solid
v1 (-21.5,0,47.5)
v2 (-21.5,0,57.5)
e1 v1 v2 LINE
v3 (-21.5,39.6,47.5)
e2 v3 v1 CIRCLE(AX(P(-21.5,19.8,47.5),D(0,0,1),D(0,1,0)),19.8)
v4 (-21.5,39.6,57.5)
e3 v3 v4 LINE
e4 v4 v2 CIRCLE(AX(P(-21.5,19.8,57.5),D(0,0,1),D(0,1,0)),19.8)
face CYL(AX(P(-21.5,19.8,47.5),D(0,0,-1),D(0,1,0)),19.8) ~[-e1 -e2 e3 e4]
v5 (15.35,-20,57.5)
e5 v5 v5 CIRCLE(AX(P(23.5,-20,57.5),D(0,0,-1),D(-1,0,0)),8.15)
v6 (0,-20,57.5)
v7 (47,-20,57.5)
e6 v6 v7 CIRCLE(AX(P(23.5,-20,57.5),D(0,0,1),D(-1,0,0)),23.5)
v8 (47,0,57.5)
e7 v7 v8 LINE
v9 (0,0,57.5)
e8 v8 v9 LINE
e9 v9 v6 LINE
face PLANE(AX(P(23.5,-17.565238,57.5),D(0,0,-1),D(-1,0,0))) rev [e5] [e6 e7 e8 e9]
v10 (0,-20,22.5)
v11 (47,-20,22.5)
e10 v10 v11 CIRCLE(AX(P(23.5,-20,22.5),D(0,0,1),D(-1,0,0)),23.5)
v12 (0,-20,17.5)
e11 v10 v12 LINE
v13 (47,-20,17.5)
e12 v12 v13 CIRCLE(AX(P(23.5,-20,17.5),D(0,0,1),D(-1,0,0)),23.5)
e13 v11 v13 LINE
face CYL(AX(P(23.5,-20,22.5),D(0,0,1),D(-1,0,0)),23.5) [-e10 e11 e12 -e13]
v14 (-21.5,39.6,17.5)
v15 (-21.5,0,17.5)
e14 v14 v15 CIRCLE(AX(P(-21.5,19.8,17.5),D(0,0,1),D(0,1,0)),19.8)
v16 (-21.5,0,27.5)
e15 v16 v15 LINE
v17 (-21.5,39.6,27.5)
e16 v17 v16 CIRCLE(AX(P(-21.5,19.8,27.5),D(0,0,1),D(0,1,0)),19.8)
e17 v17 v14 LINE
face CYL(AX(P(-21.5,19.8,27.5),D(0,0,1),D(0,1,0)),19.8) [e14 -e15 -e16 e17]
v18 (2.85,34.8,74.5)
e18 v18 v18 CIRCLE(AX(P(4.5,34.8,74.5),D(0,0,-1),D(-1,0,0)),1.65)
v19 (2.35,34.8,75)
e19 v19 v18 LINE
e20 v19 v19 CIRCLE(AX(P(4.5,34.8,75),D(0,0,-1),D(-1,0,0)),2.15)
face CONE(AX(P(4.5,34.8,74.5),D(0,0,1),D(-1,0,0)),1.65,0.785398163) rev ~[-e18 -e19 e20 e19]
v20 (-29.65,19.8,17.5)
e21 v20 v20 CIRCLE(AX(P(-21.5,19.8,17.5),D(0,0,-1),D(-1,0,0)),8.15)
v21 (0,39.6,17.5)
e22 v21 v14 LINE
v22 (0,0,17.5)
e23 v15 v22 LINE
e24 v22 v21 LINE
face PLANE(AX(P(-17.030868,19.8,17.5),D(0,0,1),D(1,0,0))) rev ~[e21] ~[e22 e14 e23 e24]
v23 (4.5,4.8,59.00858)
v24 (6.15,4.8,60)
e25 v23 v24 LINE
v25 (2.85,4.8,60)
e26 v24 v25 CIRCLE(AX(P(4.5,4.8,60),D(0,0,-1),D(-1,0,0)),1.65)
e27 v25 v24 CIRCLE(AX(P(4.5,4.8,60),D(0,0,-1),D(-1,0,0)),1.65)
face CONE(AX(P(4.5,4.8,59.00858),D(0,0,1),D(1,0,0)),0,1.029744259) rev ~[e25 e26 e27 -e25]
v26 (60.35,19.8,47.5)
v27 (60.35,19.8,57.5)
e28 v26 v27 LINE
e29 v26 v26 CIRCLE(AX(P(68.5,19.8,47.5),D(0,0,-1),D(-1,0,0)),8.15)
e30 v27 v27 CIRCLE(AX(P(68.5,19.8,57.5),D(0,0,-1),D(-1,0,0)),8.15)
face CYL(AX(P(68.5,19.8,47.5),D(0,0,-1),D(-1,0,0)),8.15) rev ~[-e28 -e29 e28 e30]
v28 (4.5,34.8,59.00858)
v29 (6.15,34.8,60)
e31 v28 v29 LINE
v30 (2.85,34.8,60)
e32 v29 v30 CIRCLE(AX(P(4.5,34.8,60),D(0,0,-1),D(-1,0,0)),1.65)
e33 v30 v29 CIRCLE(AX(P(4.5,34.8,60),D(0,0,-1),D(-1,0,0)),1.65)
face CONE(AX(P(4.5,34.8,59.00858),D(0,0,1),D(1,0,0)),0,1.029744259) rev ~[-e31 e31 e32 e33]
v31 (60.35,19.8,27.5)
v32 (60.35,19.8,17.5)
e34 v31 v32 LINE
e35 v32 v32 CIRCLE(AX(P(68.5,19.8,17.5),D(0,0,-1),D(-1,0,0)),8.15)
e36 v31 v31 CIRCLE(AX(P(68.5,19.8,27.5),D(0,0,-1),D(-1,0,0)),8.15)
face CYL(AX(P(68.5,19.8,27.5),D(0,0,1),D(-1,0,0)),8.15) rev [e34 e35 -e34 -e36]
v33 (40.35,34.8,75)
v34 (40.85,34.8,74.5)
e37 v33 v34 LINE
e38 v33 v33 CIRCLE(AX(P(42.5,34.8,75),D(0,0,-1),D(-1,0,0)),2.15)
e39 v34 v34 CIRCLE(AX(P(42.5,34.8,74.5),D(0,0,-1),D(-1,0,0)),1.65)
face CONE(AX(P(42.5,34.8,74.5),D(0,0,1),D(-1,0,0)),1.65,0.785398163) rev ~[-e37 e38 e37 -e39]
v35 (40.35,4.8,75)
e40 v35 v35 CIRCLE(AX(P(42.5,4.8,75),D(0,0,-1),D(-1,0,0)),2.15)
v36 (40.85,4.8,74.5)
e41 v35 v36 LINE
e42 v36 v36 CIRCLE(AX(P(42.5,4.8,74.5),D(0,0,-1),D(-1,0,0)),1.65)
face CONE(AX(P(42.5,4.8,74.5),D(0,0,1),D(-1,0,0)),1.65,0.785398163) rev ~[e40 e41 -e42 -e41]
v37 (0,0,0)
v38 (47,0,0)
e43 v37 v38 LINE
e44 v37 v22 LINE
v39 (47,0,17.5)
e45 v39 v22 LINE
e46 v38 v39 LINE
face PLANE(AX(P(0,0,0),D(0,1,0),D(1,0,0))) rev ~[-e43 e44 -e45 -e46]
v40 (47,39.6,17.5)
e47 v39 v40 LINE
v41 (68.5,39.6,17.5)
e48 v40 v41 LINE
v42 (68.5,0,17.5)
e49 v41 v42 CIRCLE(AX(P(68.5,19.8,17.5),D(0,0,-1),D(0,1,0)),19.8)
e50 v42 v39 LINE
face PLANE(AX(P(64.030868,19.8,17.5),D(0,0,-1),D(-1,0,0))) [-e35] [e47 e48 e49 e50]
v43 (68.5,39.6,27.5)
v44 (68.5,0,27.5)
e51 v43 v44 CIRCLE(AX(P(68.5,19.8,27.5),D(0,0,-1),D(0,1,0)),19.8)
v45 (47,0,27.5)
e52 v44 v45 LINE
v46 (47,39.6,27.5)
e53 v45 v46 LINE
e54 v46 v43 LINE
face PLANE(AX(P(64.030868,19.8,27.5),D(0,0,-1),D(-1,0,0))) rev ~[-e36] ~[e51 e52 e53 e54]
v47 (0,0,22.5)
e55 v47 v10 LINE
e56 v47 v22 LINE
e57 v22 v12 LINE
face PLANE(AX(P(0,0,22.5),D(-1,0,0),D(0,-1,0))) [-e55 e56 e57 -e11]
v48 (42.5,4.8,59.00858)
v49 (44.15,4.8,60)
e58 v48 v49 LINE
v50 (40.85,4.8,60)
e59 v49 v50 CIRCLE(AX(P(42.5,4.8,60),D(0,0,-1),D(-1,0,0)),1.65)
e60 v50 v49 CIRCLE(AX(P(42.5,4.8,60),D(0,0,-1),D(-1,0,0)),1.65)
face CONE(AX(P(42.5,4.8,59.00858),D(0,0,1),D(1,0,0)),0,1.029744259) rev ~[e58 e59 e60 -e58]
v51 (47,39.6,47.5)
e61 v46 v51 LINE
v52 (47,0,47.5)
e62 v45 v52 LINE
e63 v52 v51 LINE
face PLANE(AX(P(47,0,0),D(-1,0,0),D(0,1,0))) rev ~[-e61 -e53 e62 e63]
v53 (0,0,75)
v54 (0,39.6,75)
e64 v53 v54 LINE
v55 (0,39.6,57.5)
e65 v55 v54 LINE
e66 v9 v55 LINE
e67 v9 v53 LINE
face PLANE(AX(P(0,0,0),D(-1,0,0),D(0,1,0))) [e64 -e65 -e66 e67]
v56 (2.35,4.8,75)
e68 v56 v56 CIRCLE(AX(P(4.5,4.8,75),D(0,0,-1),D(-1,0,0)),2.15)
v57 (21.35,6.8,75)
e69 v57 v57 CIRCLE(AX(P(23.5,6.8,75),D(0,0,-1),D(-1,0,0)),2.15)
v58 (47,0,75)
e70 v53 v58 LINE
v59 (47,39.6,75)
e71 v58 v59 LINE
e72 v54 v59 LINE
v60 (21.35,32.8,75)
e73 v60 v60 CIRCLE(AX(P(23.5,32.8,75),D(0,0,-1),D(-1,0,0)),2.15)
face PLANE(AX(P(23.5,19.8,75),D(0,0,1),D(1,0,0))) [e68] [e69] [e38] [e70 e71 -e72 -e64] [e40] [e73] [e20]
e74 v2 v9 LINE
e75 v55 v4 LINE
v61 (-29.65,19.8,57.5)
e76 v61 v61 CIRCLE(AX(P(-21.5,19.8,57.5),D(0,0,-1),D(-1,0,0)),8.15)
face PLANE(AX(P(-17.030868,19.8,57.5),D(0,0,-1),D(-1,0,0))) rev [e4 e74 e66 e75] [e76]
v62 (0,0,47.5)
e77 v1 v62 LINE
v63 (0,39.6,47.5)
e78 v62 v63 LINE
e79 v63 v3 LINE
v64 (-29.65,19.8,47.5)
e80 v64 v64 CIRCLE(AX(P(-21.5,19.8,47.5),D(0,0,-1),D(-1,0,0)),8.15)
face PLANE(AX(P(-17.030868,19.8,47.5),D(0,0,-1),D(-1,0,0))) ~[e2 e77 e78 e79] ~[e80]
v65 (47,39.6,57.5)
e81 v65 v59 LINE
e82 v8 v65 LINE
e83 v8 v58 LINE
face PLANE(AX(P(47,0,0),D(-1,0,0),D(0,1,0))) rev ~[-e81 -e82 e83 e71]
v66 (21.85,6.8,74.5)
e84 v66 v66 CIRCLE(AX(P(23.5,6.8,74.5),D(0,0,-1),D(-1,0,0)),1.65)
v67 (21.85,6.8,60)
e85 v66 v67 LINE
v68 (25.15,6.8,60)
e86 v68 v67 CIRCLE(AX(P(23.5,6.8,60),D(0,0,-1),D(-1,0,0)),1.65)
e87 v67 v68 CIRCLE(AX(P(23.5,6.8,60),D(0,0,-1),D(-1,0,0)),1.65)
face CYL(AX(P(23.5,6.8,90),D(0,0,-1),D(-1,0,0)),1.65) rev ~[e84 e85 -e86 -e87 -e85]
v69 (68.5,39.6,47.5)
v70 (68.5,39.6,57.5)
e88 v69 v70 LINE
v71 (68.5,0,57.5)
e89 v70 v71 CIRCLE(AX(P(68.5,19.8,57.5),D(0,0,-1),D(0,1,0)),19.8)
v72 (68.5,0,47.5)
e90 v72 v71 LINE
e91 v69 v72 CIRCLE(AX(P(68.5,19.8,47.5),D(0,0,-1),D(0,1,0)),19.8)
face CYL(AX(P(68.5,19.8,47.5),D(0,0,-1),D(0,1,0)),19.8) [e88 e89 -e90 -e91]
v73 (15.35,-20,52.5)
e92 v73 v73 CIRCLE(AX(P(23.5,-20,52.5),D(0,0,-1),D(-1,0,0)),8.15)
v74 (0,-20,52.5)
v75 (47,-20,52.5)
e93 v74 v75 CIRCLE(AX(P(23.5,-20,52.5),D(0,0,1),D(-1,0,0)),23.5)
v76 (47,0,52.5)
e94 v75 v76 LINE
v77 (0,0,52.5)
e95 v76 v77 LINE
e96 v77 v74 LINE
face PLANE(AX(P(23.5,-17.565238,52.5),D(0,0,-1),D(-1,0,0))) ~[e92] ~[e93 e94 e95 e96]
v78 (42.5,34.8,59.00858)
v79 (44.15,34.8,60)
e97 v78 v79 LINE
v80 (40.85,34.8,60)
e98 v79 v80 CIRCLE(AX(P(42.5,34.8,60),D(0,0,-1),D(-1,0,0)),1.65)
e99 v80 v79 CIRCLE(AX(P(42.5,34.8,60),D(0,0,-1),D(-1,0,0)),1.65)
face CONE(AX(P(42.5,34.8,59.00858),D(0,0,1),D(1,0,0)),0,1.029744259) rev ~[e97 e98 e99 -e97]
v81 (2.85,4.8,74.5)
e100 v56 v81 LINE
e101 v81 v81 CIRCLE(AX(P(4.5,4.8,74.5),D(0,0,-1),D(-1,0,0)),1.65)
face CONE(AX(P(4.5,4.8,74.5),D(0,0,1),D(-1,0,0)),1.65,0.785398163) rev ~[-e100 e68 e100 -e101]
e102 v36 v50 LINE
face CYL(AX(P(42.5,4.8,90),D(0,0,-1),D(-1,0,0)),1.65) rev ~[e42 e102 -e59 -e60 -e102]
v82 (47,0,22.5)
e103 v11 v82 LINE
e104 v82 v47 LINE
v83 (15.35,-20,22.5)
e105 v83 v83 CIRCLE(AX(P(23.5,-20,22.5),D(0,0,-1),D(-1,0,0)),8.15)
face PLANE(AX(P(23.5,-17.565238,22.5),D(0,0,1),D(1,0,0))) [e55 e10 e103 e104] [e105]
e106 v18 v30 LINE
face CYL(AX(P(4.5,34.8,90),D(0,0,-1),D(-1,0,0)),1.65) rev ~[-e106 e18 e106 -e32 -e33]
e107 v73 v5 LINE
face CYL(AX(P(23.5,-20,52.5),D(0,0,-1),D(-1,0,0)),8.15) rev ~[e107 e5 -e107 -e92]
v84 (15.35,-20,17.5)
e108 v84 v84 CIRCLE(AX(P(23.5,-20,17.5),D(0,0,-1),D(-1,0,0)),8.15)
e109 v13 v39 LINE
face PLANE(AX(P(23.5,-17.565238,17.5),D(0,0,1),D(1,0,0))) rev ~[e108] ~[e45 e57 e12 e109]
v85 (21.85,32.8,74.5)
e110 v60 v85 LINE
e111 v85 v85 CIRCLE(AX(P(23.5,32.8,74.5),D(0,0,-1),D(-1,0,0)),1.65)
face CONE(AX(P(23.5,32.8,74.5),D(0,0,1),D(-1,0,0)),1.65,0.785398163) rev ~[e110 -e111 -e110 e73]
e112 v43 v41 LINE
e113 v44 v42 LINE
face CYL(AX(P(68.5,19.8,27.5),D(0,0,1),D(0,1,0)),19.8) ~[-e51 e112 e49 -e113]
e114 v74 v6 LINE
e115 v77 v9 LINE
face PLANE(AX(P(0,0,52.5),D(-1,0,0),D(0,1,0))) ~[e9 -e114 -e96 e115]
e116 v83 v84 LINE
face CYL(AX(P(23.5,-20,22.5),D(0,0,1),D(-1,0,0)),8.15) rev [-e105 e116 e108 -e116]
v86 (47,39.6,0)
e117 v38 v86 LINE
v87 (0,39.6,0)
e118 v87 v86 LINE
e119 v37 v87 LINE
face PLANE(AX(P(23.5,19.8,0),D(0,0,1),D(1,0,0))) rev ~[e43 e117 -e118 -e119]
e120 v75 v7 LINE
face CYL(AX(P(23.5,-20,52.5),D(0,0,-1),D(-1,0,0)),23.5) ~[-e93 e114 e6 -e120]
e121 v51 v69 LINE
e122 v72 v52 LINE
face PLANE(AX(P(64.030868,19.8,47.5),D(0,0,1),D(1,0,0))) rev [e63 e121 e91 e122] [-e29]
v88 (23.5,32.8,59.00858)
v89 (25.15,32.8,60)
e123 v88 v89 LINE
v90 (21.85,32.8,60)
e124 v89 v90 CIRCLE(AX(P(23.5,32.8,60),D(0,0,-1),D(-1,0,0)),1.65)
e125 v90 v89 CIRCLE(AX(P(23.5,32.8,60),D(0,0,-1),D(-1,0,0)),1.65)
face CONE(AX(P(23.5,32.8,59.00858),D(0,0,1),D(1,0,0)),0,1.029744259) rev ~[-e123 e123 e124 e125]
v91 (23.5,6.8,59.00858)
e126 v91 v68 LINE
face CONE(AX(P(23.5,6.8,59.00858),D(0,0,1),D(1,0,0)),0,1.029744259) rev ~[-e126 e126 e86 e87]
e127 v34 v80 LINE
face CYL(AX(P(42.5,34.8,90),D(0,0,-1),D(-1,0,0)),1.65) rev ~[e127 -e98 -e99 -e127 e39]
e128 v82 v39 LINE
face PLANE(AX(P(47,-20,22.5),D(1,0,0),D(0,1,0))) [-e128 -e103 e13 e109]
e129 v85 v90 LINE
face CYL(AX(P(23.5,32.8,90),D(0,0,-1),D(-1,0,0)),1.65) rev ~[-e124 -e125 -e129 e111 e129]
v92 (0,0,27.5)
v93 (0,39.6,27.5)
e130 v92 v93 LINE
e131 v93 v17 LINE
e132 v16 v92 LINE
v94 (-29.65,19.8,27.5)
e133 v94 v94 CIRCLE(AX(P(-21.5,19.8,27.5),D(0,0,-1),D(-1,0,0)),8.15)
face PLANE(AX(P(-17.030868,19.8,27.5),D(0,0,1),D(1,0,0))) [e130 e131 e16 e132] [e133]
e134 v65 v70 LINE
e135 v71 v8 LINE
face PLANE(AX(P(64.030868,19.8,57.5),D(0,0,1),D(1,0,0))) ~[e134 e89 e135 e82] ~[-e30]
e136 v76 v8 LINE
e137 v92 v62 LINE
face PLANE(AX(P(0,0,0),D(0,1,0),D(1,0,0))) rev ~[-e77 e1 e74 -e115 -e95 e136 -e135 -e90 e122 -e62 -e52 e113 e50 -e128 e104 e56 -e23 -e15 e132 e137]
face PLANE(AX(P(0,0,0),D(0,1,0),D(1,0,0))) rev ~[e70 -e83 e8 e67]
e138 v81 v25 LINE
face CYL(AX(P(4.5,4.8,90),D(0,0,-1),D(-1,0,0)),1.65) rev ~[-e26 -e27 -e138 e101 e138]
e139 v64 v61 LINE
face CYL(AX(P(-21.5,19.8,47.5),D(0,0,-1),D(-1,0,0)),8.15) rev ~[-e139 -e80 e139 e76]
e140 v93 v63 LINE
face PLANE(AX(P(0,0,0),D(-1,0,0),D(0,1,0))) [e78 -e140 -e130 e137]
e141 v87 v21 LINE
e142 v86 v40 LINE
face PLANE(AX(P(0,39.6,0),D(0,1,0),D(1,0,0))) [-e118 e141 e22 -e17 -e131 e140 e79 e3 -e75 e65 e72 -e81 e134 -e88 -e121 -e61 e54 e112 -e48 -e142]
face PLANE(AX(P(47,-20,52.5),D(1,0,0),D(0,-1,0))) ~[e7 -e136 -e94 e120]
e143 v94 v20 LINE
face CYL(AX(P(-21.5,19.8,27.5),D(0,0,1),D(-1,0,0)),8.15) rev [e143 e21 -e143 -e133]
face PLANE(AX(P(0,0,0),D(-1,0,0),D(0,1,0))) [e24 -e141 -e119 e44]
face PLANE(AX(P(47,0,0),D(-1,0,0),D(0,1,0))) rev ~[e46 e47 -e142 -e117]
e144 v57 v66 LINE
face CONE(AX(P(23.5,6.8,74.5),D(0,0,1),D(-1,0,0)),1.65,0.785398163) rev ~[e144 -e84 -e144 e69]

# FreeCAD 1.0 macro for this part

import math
import FreeCAD as App
import Part
import Sketcher
from FreeCAD import Vector
Q = App.Units.Quantity


def edges_at(feature, points):
    """Names of the edges that pass closest to the given points."""
    edges = feature.Shape.Edges
    near = lambda p: min(range(len(edges)), key=lambda i: edges[i].distToShape(Part.Vertex(*p))[0])
    return sorted({f"Edge{near(p) + 1}" for p in points})

doc = App.newDocument("Part")
body = doc.addObject("PartDesign::Body", "Body")

sketch1 = doc.addObject("Sketcher::SketchObject", "Sketch")
body.addObject(sketch1)
sketch1.AttachmentSupport = (doc.XY_Plane, [""])
sketch1.MapMode = "FlatFace"
sketch1.addGeometry([
    Part.LineSegment(Vector(0, 40, 0), Vector(0, 0, 0)),
    Part.LineSegment(Vector(0, 0, 0), Vector(47, 0, 0)),
    Part.LineSegment(Vector(47, 0, 0), Vector(47, 40, 0)),
    Part.LineSegment(Vector(47, 40, 0), Vector(0, 40, 0)),
], False)
sketch1.addConstraint([
    Sketcher.Constraint("Coincident", 0, 2, 1, 1),
    Sketcher.Constraint("Coincident", 1, 2, 2, 1),
    Sketcher.Constraint("Coincident", 2, 2, 3, 1),
    Sketcher.Constraint("Coincident", 3, 2, 0, 1),
    Sketcher.Constraint("Vertical", 0),
    Sketcher.Constraint("Horizontal", 1),
    Sketcher.Constraint("Vertical", 2),
    Sketcher.Constraint("Horizontal", 3),
    Sketcher.Constraint("Coincident", 0, 2, -1, 1),
    Sketcher.Constraint("DistanceX", 1, 1, 1, 2, Q("47 mm")),
    Sketcher.Constraint("DistanceY", 0, 2, 0, 1, Q("39.6 mm")),
])
pad1 = doc.addObject("PartDesign::Pad", "Pad")
body.addObject(pad1)
pad1.Profile = sketch1
pad1.Length = 75

sketch2 = doc.addObject("Sketcher::SketchObject", "Sketch001")
body.addObject(sketch2)
sketch2.AttachmentSupport = (doc.XY_Plane, [""])
sketch2.MapMode = "FlatFace"
sketch2.AttachmentOffset = App.Placement(Vector(0, 0, 27.5), App.Rotation())
sketch2.addGeometry([
    Part.LineSegment(Vector(47, 40, 0), Vector(68, 40, 0)),
    Part.ArcOfCircle(Part.Circle(Vector(68, 20, 0), Vector(0, 0, 1), 20), math.radians(-90), math.radians(90)),
    Part.LineSegment(Vector(68, 0, 0), Vector(47, 0, 0)),
    Part.LineSegment(Vector(47, 0, 0), Vector(47, 40, 0)),
    Part.Circle(Vector(68, 20, 0), Vector(0, 0, 1), 8),
    Part.LineSegment(Vector(0, 0, 0), Vector(-22, 0, 0)),
    Part.ArcOfCircle(Part.Circle(Vector(-22, 20, 0), Vector(0, 0, 1), 20), math.radians(90), math.radians(270)),
    Part.LineSegment(Vector(-22, 40, 0), Vector(0, 40, 0)),
    Part.LineSegment(Vector(0, 40, 0), Vector(0, 0, 0)),
    Part.Circle(Vector(-22, 20, 0), Vector(0, 0, 1), 8),
], False)
sketch2.addConstraint([
    Sketcher.Constraint("Tangent", 0, 2, 1, 2),
    Sketcher.Constraint("Tangent", 1, 1, 2, 1),
    Sketcher.Constraint("Coincident", 2, 2, 3, 1),
    Sketcher.Constraint("Coincident", 3, 2, 0, 1),
    Sketcher.Constraint("Tangent", 5, 2, 6, 2),
    Sketcher.Constraint("Tangent", 6, 1, 7, 1),
    Sketcher.Constraint("Coincident", 7, 2, 8, 1),
    Sketcher.Constraint("Coincident", 8, 2, 5, 1),
    Sketcher.Constraint("Horizontal", 0),
    Sketcher.Constraint("Horizontal", 2),
    Sketcher.Constraint("Vertical", 3),
    Sketcher.Constraint("Horizontal", 5),
    Sketcher.Constraint("Horizontal", 7),
    Sketcher.Constraint("Vertical", 8),
    Sketcher.Constraint("Coincident", 8, 2, -1, 1),
    Sketcher.Constraint("Coincident", 4, 3, 1, 3),
    Sketcher.Constraint("Coincident", 9, 3, 6, 3),
    Sketcher.Constraint("Equal", 1, 6),
    Sketcher.Constraint("Equal", 4, 9),
    Sketcher.Constraint("PointOnObject", 1, 1, -1),
    Sketcher.Constraint("Equal", 2, 5),
    Sketcher.Constraint("Diameter", 4, Q("16.3 mm")),
    Sketcher.Constraint("Radius", 1, Q("19.8 mm")),
    Sketcher.Constraint("DistanceX", 0, 1, 0, 2, Q("21.5 mm")),
    Sketcher.Constraint("DistanceX", -1, 1, 2, 2, Q("47 mm")),
])
pad2 = doc.addObject("PartDesign::Pad", "Pad001")
body.addObject(pad2)
pad2.Profile = sketch2
pad2.Length = 10
pad2.Reversed = True
doc.recompute()

datumplane = doc.addObject("PartDesign::Plane", "DatumPlane")
body.addObject(datumplane)
datumplane.AttachmentSupport = (doc.XY_Plane, [""])
datumplane.MapMode = "FlatFace"
datumplane.AttachmentOffset = App.Placement(Vector(0, 0, 37.5), App.Rotation())
mirrored = doc.addObject("PartDesign::Mirrored", "Mirrored")
body.addObject(mirrored)
mirrored.Originals = [pad2]
mirrored.MirrorPlane = (datumplane, [""])
body.Tip = mirrored

sketch3 = doc.addObject("Sketcher::SketchObject", "Sketch002")
body.addObject(sketch3)
sketch3.AttachmentSupport = (doc.XY_Plane, [""])
sketch3.MapMode = "FlatFace"
sketch3.AttachmentOffset = App.Placement(Vector(0, 0, 22.5), App.Rotation())
sketch3.addGeometry([
    Part.LineSegment(Vector(0, 0, 0), Vector(47, 0, 0)),
    Part.LineSegment(Vector(47, 0, 0), Vector(47, -20, 0)),
    Part.ArcOfCircle(Part.Circle(Vector(24, -20, 0), Vector(0, 0, 1), 24), math.radians(180), math.radians(360)),
    Part.LineSegment(Vector(0, -20, 0), Vector(0, 0, 0)),
    Part.Circle(Vector(24, -20, 0), Vector(0, 0, 1), 8),
], False)
sketch3.addConstraint([
    Sketcher.Constraint("Coincident", 0, 2, 1, 1),
    Sketcher.Constraint("Tangent", 1, 2, 2, 2),
    Sketcher.Constraint("Tangent", 2, 1, 3, 1),
    Sketcher.Constraint("Coincident", 3, 2, 0, 1),
    Sketcher.Constraint("Horizontal", 0),
    Sketcher.Constraint("Vertical", 1),
    Sketcher.Constraint("Vertical", 3),
    Sketcher.Constraint("Coincident", 3, 2, -1, 1),
    Sketcher.Constraint("Coincident", 4, 3, 2, 3),
    Sketcher.Constraint("Diameter", 4, Q("16.3 mm")),
    Sketcher.Constraint("Radius", 2, Q("23.5 mm")),
    Sketcher.Constraint("DistanceY", 1, 2, 1, 1, Q("20 mm")),
])
pad3 = doc.addObject("PartDesign::Pad", "Pad002")
body.addObject(pad3)
pad3.Profile = sketch3
pad3.Length = 5
pad3.Reversed = True
doc.recompute()

datumplane2 = doc.addObject("PartDesign::Plane", "DatumPlane001")
body.addObject(datumplane2)
datumplane2.AttachmentSupport = (doc.XY_Plane, [""])
datumplane2.MapMode = "FlatFace"
datumplane2.AttachmentOffset = App.Placement(Vector(0, 0, 37.5), App.Rotation())
mirrored2 = doc.addObject("PartDesign::Mirrored", "Mirrored001")
body.addObject(mirrored2)
mirrored2.Originals = [pad3]
mirrored2.MirrorPlane = (datumplane2, [""])
body.Tip = mirrored2

sketch4 = doc.addObject("Sketcher::SketchObject", "Sketch003")
body.addObject(sketch4)
sketch4.AttachmentSupport = (doc.XY_Plane, [""])
sketch4.MapMode = "FlatFace"
sketch4.AttachmentOffset = App.Placement(Vector(0, 0, 75), App.Rotation())
sketch4.addGeometry([
    Part.Circle(Vector(4.5, 34.8, 0), Vector(0, 0, 1), 1.6),
    Part.Circle(Vector(23.5, 32.8, 0), Vector(0, 0, 1), 1.6),
    Part.Circle(Vector(42.5, 34.8, 0), Vector(0, 0, 1), 1.6),
    Part.Circle(Vector(42.5, 4.8, 0), Vector(0, 0, 1), 1.6),
    Part.Circle(Vector(23.5, 6.8, 0), Vector(0, 0, 1), 1.6),
    Part.Circle(Vector(4.5, 4.8, 0), Vector(0, 0, 1), 1.6),
], False)
sketch4.addConstraint([
    Sketcher.Constraint("Equal", 0, 1),
    Sketcher.Constraint("Equal", 1, 2),
    Sketcher.Constraint("Equal", 2, 3),
    Sketcher.Constraint("Equal", 3, 4),
    Sketcher.Constraint("Equal", 4, 5),
    Sketcher.Constraint("Horizontal", 0, 3, 2, 3),
    Sketcher.Constraint("Horizontal", 3, 3, 5, 3),
    Sketcher.Constraint("Vertical", 2, 3, 3, 3),
    Sketcher.Constraint("Vertical", 1, 3, 4, 3),
    Sketcher.Constraint("Vertical", 0, 3, 5, 3),
    Sketcher.Constraint("Diameter", 0, Q("3.3 mm")),
    Sketcher.Constraint("DistanceX", 0, 3, 1, 3, Q("19 mm")),
    Sketcher.Constraint("DistanceY", 1, 3, 0, 3, Q("2 mm")),
    Sketcher.Constraint("DistanceX", 1, 3, 2, 3, Q("19 mm")),
    Sketcher.Constraint("DistanceY", 3, 3, 2, 3, Q("30 mm")),
    Sketcher.Constraint("DistanceY", 3, 3, 4, 3, Q("2 mm")),
    Sketcher.Constraint("DistanceX", -1, 1, 0, 3, Q("4.5 mm")),
    Sketcher.Constraint("DistanceY", -1, 1, 0, 3, Q("34.8 mm")),
])
doc.recompute()
hole = doc.addObject("PartDesign::Hole", "Hole")
body.addObject(hole)
hole.Profile = sketch4
hole.ThreadType = "None"
hole.Diameter = 3.3
hole.DepthType = "Dimension"
hole.Depth = 15
hole.DrillPoint = "Angled"
hole.DrillPointAngle = 118
doc.recompute()

chamfer = doc.addObject("PartDesign::Chamfer", "Chamfer")
body.addObject(chamfer)
chamfer.Base = (hole, edges_at(hole, [
    (6.15, 4.8, 75),
    (25.15, 6.8, 75),
    (44.15, 4.8, 75),
    (44.15, 34.8, 75),
    (25.15, 32.8, 75),
    (6.15, 34.8, 75),
]))
chamfer.Size = 0.5

doc.recompute()
